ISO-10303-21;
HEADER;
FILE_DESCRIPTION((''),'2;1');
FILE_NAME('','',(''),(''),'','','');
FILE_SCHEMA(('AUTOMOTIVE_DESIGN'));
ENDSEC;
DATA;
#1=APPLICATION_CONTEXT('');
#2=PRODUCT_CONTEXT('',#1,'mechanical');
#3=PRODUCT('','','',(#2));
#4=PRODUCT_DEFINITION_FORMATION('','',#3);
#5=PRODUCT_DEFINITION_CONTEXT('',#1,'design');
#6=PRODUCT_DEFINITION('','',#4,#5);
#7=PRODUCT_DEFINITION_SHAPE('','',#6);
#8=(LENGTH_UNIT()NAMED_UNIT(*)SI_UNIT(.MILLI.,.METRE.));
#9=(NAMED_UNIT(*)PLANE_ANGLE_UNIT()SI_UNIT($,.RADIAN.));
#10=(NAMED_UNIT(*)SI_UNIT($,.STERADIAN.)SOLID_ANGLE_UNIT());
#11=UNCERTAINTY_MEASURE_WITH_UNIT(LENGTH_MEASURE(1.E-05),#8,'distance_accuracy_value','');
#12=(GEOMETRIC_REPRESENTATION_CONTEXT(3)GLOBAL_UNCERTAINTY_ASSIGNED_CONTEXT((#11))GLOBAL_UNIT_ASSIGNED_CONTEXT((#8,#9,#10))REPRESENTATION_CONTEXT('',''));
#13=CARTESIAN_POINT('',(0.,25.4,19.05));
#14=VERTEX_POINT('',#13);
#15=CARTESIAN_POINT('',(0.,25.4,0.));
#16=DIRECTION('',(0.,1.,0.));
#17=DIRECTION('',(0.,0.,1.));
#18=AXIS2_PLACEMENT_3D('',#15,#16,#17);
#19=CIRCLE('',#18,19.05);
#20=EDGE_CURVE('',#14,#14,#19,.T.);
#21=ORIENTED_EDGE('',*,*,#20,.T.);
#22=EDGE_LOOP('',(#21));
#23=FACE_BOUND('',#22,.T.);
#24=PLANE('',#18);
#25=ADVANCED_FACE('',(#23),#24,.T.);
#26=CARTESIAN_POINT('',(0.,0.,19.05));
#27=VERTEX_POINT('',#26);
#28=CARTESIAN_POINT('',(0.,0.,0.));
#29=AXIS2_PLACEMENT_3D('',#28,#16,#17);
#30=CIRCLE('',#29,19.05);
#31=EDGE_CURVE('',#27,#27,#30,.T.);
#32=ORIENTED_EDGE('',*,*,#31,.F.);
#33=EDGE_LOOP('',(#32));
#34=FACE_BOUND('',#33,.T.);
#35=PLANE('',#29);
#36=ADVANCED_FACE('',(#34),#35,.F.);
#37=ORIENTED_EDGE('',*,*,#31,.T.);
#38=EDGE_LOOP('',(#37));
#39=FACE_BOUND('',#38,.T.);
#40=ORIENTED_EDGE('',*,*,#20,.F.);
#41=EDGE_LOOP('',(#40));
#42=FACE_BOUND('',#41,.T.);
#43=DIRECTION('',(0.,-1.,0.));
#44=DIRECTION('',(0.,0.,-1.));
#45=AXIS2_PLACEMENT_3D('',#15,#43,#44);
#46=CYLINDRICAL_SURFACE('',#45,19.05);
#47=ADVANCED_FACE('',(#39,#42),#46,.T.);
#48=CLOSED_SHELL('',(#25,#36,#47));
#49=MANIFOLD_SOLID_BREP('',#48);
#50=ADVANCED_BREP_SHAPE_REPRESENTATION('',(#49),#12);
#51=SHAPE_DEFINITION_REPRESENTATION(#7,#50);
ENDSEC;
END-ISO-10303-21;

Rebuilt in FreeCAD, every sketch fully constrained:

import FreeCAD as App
import Part
import Sketcher

V = App.Vector
Q = App.Units.Quantity

doc = App.newDocument("Part")
params = doc.addObject("Spreadsheet::Sheet", "Params")
for row, (alias, value) in enumerate([
    ("sketch1_diameter", "1.5 in"),
    ("pad1_length", "1 in"),
], start=1):
    params.set(f"A{row}", alias)
    params.set(f"B{row}", "=" + value)
    params.setAlias(f"B{row}", alias)

body = doc.addObject("PartDesign::Body", "Body")

sketch1 = body.newObject("Sketcher::SketchObject", "Sketch")
sketch1.AttachmentSupport = (doc.getObject("XZ_Plane"), [""])
sketch1.MapMode = "FlatFace"
sketch1.addGeometry(Part.Circle(V(0, 0, 0), V(0, 0, 1), 19), False)
sketch1.addConstraint([
    Sketcher.Constraint("Coincident", 0, 3, -1, 1),
    Sketcher.Constraint("Diameter", 0, Q("1.5 in")),
])
sketch1.setExpression("Constraints[1]", "Params.sketch1_diameter")
pad1 = body.newObject("PartDesign::Pad", "Pad")
pad1.Profile = sketch1
pad1.setExpression("Length", "Params.pad1_length")
pad1.Reversed = True

doc.recompute()
